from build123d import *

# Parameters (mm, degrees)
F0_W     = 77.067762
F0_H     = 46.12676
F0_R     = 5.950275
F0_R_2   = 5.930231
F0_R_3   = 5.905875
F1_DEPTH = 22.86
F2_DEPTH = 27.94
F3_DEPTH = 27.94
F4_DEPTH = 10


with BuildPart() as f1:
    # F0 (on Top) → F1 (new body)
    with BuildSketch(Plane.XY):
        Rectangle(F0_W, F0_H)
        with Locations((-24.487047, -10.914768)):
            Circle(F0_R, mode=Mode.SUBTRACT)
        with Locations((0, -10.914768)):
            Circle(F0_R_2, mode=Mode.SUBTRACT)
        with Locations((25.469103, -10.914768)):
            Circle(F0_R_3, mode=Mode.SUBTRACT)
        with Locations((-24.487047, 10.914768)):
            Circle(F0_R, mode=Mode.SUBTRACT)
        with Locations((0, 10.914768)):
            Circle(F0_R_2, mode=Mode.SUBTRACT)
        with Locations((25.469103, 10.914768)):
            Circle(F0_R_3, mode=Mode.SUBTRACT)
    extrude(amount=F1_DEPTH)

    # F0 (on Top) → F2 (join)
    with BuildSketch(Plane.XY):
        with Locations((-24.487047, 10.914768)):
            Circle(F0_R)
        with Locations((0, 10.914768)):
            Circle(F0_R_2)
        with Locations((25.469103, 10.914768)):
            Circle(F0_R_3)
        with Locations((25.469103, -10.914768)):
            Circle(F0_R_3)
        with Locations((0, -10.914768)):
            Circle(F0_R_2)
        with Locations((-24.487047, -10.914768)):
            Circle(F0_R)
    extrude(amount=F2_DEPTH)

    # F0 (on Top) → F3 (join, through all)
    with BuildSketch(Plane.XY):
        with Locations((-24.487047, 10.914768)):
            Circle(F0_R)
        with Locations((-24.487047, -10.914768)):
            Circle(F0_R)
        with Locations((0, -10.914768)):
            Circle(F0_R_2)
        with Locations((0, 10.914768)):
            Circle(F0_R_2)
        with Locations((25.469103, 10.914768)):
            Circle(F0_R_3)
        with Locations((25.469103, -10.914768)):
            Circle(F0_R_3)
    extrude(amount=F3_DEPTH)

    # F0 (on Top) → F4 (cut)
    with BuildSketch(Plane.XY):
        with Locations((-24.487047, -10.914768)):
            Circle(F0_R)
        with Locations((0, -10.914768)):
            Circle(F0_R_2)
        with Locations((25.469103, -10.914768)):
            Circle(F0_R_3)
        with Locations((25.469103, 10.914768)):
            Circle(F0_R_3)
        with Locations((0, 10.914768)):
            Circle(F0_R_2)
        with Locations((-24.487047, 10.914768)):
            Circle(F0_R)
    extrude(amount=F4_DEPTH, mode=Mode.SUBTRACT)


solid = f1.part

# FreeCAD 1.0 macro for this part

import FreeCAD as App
import Part
import Sketcher
Q = App.Units.Quantity


def add_polygon(sketch, points):
    """Adds a closed chain of lines whose ends are joined by coincident constraints."""
    first, n = sketch.GeometryCount, len(points)
    for a, b in zip(points, points[1:] + points[:1]):
        sketch.addGeometry(Part.LineSegment(App.Vector(*a, 0), App.Vector(*b, 0)), False)
    for i in range(n):
        sketch.addConstraint(Sketcher.Constraint("Coincident", first + i, 2, first + (i + 1) % n, 1))

doc = App.newDocument("Part")
body = doc.addObject("PartDesign::Body", "Body")

# Sketch on XY plane
sketch1 = body.newObject("Sketcher::SketchObject", "Sketch")
sketch1.AttachmentSupport = (doc.getObject("XY_Plane"), [""])
sketch1.MapMode = "FlatFace"
add_polygon(sketch1, [(-39, 23), (-39, -23), (39, -23), (39, 23)])  # lines 0-3
sketch1.addGeometry(Part.Circle(App.Vector(-24, -11, 0), App.Vector(0, 0, 1), 6), False)  # 4
sketch1.addGeometry(Part.Circle(App.Vector(0, -11, 0), App.Vector(0, 0, 1), 6), False)  # 5
sketch1.addGeometry(Part.Circle(App.Vector(25, -11, 0), App.Vector(0, 0, 1), 6), False)  # 6
sketch1.addGeometry(Part.Circle(App.Vector(-24, 11, 0), App.Vector(0, 0, 1), 6), False)  # 7
sketch1.addGeometry(Part.Circle(App.Vector(0, 11, 0), App.Vector(0, 0, 1), 6), False)  # 8
sketch1.addGeometry(Part.Circle(App.Vector(25, 11, 0), App.Vector(0, 0, 1), 6), False)  # 9
sketch1.addConstraint(Sketcher.Constraint("Vertical", 0))
sketch1.addConstraint(Sketcher.Constraint("Horizontal", 1))
sketch1.addConstraint(Sketcher.Constraint("Vertical", 2))
sketch1.addConstraint(Sketcher.Constraint("Horizontal", 3))
sketch1.addConstraint(Sketcher.Constraint("Equal", 4, 7))
sketch1.addConstraint(Sketcher.Constraint("Equal", 5, 8))
sketch1.addConstraint(Sketcher.Constraint("Equal", 6, 9))
sketch1.addConstraint(Sketcher.Constraint("Symmetric", 5, 3, 8, 3, -1, 1))
sketch1.addConstraint(Sketcher.Constraint("Symmetric", 0, 2, 2, 2, -1, 1))
sketch1.addConstraint(Sketcher.Constraint("Symmetric", 4, 3, 7, 3, -1))
sketch1.addConstraint(Sketcher.Constraint("Symmetric", 6, 3, 9, 3, -1))
sketch1.addConstraint(Sketcher.Constraint("PointOnObject", 5, 3, -2))
sketch1.addConstraint(Sketcher.Constraint("Horizontal", 4, 3, 5, 3))
sketch1.addConstraint(Sketcher.Constraint("Horizontal", 5, 3, 6, 3))
sketch1.addConstraint(Sketcher.Constraint("Diameter", 4, Q("11.90055 mm")))
sketch1.addConstraint(Sketcher.Constraint("Diameter", 6, Q("11.81175 mm")))
sketch1.addConstraint(Sketcher.Constraint("Diameter", 5, Q("11.860462 mm")))
sketch1.addConstraint(Sketcher.Constraint("DistanceX", 1, 1, 1, 2, Q("77.067762 mm")))
sketch1.addConstraint(Sketcher.Constraint("DistanceY", 0, 2, 0, 1, Q("46.12676 mm")))
sketch1.addConstraint(Sketcher.Constraint("DistanceX", 4, 3, 6, 3, Q("49.95615 mm")))
sketch1.addConstraint(Sketcher.Constraint("DistanceY", 0, 2, 4, 3, Q("12.148612 mm")))
sketch1.addConstraint(Sketcher.Constraint("DistanceX", 4, 3, -1, 1, Q("24.487047 mm")))
pad1 = body.newObject("PartDesign::Pad", "Pad")
pad1.Profile = sketch1
pad1.Length = Q("0.9 in")

# Sketch on XY plane
sketch2 = body.newObject("Sketcher::SketchObject", "Sketch001")
sketch2.AttachmentSupport = (doc.getObject("XY_Plane"), [""])
sketch2.MapMode = "FlatFace"
sketch2.addGeometry(Part.Circle(App.Vector(-24, 11, 0), App.Vector(0, 0, 1), 6), False)
sketch2.addGeometry(Part.Circle(App.Vector(0, 11, 0), App.Vector(0, 0, 1), 6), False)
sketch2.addGeometry(Part.Circle(App.Vector(25, 11, 0), App.Vector(0, 0, 1), 6), False)
sketch2.addGeometry(Part.Circle(App.Vector(25, -11, 0), App.Vector(0, 0, 1), 6), False)
sketch2.addGeometry(Part.Circle(App.Vector(0, -11, 0), App.Vector(0, 0, 1), 6), False)
sketch2.addGeometry(Part.Circle(App.Vector(-24, -11, 0), App.Vector(0, 0, 1), 6), False)
sketch2.addConstraint(Sketcher.Constraint("Equal", 2, 3))
sketch2.addConstraint(Sketcher.Constraint("Equal", 1, 4))
sketch2.addConstraint(Sketcher.Constraint("Equal", 0, 5))
sketch2.addConstraint(Sketcher.Constraint("Symmetric", 1, 3, 4, 3, -1, 1))
sketch2.addConstraint(Sketcher.Constraint("Symmetric", 2, 3, 3, 3, -1))
sketch2.addConstraint(Sketcher.Constraint("Symmetric", 0, 3, 5, 3, -1))
sketch2.addConstraint(Sketcher.Constraint("PointOnObject", 1, 3, -2))
sketch2.addConstraint(Sketcher.Constraint("Horizontal", 0, 3, 1, 3))
sketch2.addConstraint(Sketcher.Constraint("Horizontal", 1, 3, 2, 3))
sketch2.addConstraint(Sketcher.Constraint("Diameter", 0, Q("11.90055 mm")))
sketch2.addConstraint(Sketcher.Constraint("Diameter", 2, Q("11.81175 mm")))
sketch2.addConstraint(Sketcher.Constraint("Diameter", 1, Q("11.860462 mm")))
sketch2.addConstraint(Sketcher.Constraint("DistanceX", 0, 3, 2, 3, Q("49.95615 mm")))
sketch2.addConstraint(Sketcher.Constraint("DistanceX", 0, 3, -1, 1, Q("24.487047 mm")))
sketch2.addConstraint(Sketcher.Constraint("DistanceY", -1, 1, 0, 3, Q("10.914768 mm")))
pad2 = body.newObject("PartDesign::Pad", "Pad001")
pad2.Profile = sketch2
pad2.Length = Q("1.1 in")

# Sketch on XY plane
sketch3 = body.newObject("Sketcher::SketchObject", "Sketch002")
sketch3.AttachmentSupport = (doc.getObject("XY_Plane"), [""])
sketch3.MapMode = "FlatFace"
sketch3.addGeometry(Part.Circle(App.Vector(-24, 11, 0), App.Vector(0, 0, 1), 6), False)
sketch3.addGeometry(Part.Circle(App.Vector(-24, -11, 0), App.Vector(0, 0, 1), 6), False)
sketch3.addGeometry(Part.Circle(App.Vector(0, -11, 0), App.Vector(0, 0, 1), 6), False)
sketch3.addGeometry(Part.Circle(App.Vector(0, 11, 0), App.Vector(0, 0, 1), 6), False)
sketch3.addGeometry(Part.Circle(App.Vector(25, 11, 0), App.Vector(0, 0, 1), 6), False)
sketch3.addGeometry(Part.Circle(App.Vector(25, -11, 0), App.Vector(0, 0, 1), 6), False)
sketch3.addConstraint(Sketcher.Constraint("Equal", 0, 1))
sketch3.addConstraint(Sketcher.Constraint("Equal", 2, 3))
sketch3.addConstraint(Sketcher.Constraint("Equal", 4, 5))
sketch3.addConstraint(Sketcher.Constraint("Symmetric", 2, 3, 3, 3, -1, 1))
sketch3.addConstraint(Sketcher.Constraint("Symmetric", 0, 3, 1, 3, -1))
sketch3.addConstraint(Sketcher.Constraint("Symmetric", 4, 3, 5, 3, -1))
sketch3.addConstraint(Sketcher.Constraint("PointOnObject", 2, 3, -2))
sketch3.addConstraint(Sketcher.Constraint("Horizontal", 1, 3, 2, 3))
sketch3.addConstraint(Sketcher.Constraint("Horizontal", 3, 3, 4, 3))
sketch3.addConstraint(Sketcher.Constraint("Diameter", 0, Q("11.90055 mm")))
sketch3.addConstraint(Sketcher.Constraint("Diameter", 4, Q("11.81175 mm")))
sketch3.addConstraint(Sketcher.Constraint("Diameter", 2, Q("11.860462 mm")))
sketch3.addConstraint(Sketcher.Constraint("DistanceX", 0, 3, 4, 3, Q("49.95615 mm")))
sketch3.addConstraint(Sketcher.Constraint("DistanceX", 0, 3, -1, 1, Q("24.487047 mm")))
sketch3.addConstraint(Sketcher.Constraint("DistanceY", -1, 1, 0, 3, Q("10.914768 mm")))
pad3 = body.newObject("PartDesign::Pad", "Pad002")
pad3.Profile = sketch3
pad3.Type = "UpToLast"

# Sketch on XY plane
sketch4 = body.newObject("Sketcher::SketchObject", "Sketch003")
sketch4.AttachmentSupport = (doc.getObject("XY_Plane"), [""])
sketch4.MapMode = "FlatFace"
sketch4.addGeometry(Part.Circle(App.Vector(-24, -11, 0), App.Vector(0, 0, 1), 6), False)
sketch4.addGeometry(Part.Circle(App.Vector(0, -11, 0), App.Vector(0, 0, 1), 6), False)
sketch4.addGeometry(Part.Circle(App.Vector(25, -11, 0), App.Vector(0, 0, 1), 6), False)
sketch4.addGeometry(Part.Circle(App.Vector(25, 11, 0), App.Vector(0, 0, 1), 6), False)
sketch4.addGeometry(Part.Circle(App.Vector(0, 11, 0), App.Vector(0, 0, 1), 6), False)
sketch4.addGeometry(Part.Circle(App.Vector(-24, 11, 0), App.Vector(0, 0, 1), 6), False)
sketch4.addConstraint(Sketcher.Constraint("Equal", 2, 3))
sketch4.addConstraint(Sketcher.Constraint("Equal", 1, 4))
sketch4.addConstraint(Sketcher.Constraint("Equal", 0, 5))
sketch4.addConstraint(Sketcher.Constraint("Symmetric", 1, 3, 4, 3, -1, 1))
sketch4.addConstraint(Sketcher.Constraint("Symmetric", 2, 3, 3, 3, -1))
sketch4.addConstraint(Sketcher.Constraint("Symmetric", 0, 3, 5, 3, -1))
sketch4.addConstraint(Sketcher.Constraint("PointOnObject", 1, 3, -2))
sketch4.addConstraint(Sketcher.Constraint("Horizontal", 0, 3, 1, 3))
sketch4.addConstraint(Sketcher.Constraint("Horizontal", 1, 3, 2, 3))
sketch4.addConstraint(Sketcher.Constraint("Diameter", 0, Q("11.90055 mm")))
sketch4.addConstraint(Sketcher.Constraint("Diameter", 2, Q("11.81175 mm")))
sketch4.addConstraint(Sketcher.Constraint("Diameter", 1, Q("11.860462 mm")))
sketch4.addConstraint(Sketcher.Constraint("DistanceX", 0, 3, 2, 3, Q("49.95615 mm")))
sketch4.addConstraint(Sketcher.Constraint("DistanceX", 0, 3, -1, 1, Q("24.487047 mm")))
sketch4.addConstraint(Sketcher.Constraint("DistanceY", 0, 3, -1, 1, Q("10.914768 mm")))
pocket1 = body.newObject("PartDesign::Pocket", "Pocket")
pocket1.Profile = sketch4
pocket1.Length = 10
pocket1.Reversed = True

doc.recompute()
